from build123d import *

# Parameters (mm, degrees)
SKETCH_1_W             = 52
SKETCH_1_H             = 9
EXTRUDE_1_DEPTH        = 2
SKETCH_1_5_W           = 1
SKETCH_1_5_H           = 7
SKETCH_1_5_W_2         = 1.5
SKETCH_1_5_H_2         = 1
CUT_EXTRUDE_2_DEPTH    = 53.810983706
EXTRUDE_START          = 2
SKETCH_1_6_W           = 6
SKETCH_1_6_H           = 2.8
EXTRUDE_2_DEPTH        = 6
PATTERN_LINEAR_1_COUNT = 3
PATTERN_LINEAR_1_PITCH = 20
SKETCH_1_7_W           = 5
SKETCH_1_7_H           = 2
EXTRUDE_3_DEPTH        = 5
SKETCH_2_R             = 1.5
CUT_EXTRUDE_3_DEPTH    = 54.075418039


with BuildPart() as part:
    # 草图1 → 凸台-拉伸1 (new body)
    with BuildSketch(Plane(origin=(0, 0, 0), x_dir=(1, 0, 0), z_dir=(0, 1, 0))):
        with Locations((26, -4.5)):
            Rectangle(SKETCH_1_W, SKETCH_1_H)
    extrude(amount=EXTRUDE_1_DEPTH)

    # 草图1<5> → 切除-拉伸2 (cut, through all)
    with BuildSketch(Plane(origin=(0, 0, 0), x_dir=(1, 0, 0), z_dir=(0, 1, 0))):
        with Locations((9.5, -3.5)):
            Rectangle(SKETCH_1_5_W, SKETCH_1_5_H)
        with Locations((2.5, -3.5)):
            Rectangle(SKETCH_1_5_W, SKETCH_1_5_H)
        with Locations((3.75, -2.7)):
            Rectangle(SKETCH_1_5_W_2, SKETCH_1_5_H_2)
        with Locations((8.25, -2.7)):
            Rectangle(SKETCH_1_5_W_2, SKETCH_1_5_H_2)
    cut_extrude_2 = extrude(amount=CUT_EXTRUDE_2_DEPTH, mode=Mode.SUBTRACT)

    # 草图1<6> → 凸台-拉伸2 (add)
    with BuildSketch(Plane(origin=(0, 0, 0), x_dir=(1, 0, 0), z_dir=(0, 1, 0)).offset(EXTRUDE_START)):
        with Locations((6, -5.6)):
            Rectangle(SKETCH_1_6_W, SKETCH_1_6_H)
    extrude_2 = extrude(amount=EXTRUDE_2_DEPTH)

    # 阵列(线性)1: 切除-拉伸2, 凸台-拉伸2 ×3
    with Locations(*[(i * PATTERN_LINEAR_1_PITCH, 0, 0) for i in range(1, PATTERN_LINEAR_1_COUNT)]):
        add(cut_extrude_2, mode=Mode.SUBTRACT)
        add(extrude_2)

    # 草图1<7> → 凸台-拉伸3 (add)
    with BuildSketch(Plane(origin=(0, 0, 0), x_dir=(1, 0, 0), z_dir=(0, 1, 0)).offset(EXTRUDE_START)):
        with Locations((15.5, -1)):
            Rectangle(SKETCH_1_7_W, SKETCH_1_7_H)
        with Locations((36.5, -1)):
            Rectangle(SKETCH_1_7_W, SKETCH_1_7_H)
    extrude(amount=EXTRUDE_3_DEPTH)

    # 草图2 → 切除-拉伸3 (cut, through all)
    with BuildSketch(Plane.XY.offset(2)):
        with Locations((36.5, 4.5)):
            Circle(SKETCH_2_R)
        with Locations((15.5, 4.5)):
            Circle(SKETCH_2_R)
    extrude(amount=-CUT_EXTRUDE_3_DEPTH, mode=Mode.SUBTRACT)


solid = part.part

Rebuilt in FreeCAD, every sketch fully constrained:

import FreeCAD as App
import Part
import Sketcher

V = App.Vector
Q = App.Units.Quantity


def add_polygon(sketch, points):
    """Adds a closed chain of lines whose ends are joined by coincident constraints."""
    first, n = sketch.GeometryCount, len(points)
    for a, b in zip(points, points[1:] + points[:1]):
        sketch.addGeometry(Part.LineSegment(App.Vector(*a, 0), App.Vector(*b, 0)), False)
    for i in range(n):
        sketch.addConstraint(Sketcher.Constraint("Coincident", first + i, 2, first + (i + 1) % n, 1))

doc = App.newDocument("Part")
body = doc.addObject("PartDesign::Body", "Body")

sketch1 = body.newObject("Sketcher::SketchObject", "Sketch")
sketch1.AttachmentSupport = (doc.getObject("XZ_Plane"), [""])
sketch1.MapMode = "FlatFace"
add_polygon(sketch1, [(0, 0), (0, 9), (52, 9), (52, 0)])
sketch1.addConstraint([
    Sketcher.Constraint("Vertical", 0),
    Sketcher.Constraint("Horizontal", 1),
    Sketcher.Constraint("Vertical", 2),
    Sketcher.Constraint("Horizontal", 3),
    Sketcher.Constraint("Coincident", 3, 2, -1, 1),
    Sketcher.Constraint("DistanceX", 1, 1, 1, 2, Q("52 mm")),
    Sketcher.Constraint("DistanceY", 0, 1, 0, 2, Q("9 mm")),
])
pad1 = body.newObject("PartDesign::Pad", "Pad")
pad1.Profile = sketch1
pad1.Length = 2
pad1.Reversed = True

sketch2 = body.newObject("Sketcher::SketchObject", "Sketch001")
sketch2.AttachmentSupport = (doc.getObject("XZ_Plane"), [""])
sketch2.MapMode = "FlatFace"
add_polygon(sketch2, [(9, 3.2), (9, 7), (10, 7), (10, 0), (9, 0), (9, 2.2), (7.5, 2.2), (7.5, 3.2)])
add_polygon(sketch2, [(2, 0), (2, 7), (3, 7), (3, 3.2), (4.5, 3.2), (4.5, 2.2), (3, 2.2), (3, 0)])
sketch2.addConstraint([
    Sketcher.Constraint("Vertical", 0),
    Sketcher.Constraint("Horizontal", 1),
    Sketcher.Constraint("Vertical", 2),
    Sketcher.Constraint("Horizontal", 3),
    Sketcher.Constraint("Vertical", 4),
    Sketcher.Constraint("Horizontal", 5),
    Sketcher.Constraint("Vertical", 6),
    Sketcher.Constraint("Horizontal", 7),
    Sketcher.Constraint("Vertical", 8),
    Sketcher.Constraint("Horizontal", 9),
    Sketcher.Constraint("Vertical", 10),
    Sketcher.Constraint("Horizontal", 11),
    Sketcher.Constraint("Vertical", 12),
    Sketcher.Constraint("Horizontal", 13),
    Sketcher.Constraint("Vertical", 14),
    Sketcher.Constraint("Horizontal", 15),
    Sketcher.Constraint("PointOnObject", 2, 2, -1),
    Sketcher.Constraint("PointOnObject", 14, 2, -1),
    Sketcher.Constraint("Horizontal", 1, 2, 8, 2),
    Sketcher.Constraint("Horizontal", 7, 2, 10, 2),
    Sketcher.Constraint("Horizontal", 5, 2, 12, 2),
    Sketcher.Constraint("Vertical", 0, 2, 3, 2),
    Sketcher.Constraint("Vertical", 10, 2, 13, 2),
    Sketcher.Constraint("Equal", 3, 9),
    Sketcher.Constraint("Equal", 7, 11),
    Sketcher.Constraint("Equal", 15, 6),
    Sketcher.Constraint("DistanceX", 1, 1, 1, 2, Q("1 mm")),
    Sketcher.Constraint("DistanceY", 2, 2, 2, 1, Q("7 mm")),
    Sketcher.Constraint("DistanceX", 5, 2, 5, 1, Q("1.5 mm")),
    Sketcher.Constraint("DistanceY", 0, 1, 0, 2, Q("3.8 mm")),
    Sketcher.Constraint("DistanceX", -1, 1, 0, 2, Q("9 mm")),
    Sketcher.Constraint("DistanceX", -1, 1, 8, 2, Q("2 mm")),
])
pocket1 = body.newObject("PartDesign::Pocket", "Pocket")
pocket1.Profile = sketch2
pocket1.Type = "ThroughAll"

sketch3 = body.newObject("Sketcher::SketchObject", "Sketch002")
sketch3.AttachmentSupport = (doc.getObject("XZ_Plane"), [""])
sketch3.MapMode = "FlatFace"
sketch3.AttachmentOffset = App.Placement(V(0, 0, -2), App.Rotation())
add_polygon(sketch3, [(3, 4.2), (3, 7), (9, 7), (9, 4.2)])
sketch3.addConstraint([
    Sketcher.Constraint("Vertical", 0),
    Sketcher.Constraint("Horizontal", 1),
    Sketcher.Constraint("Vertical", 2),
    Sketcher.Constraint("Horizontal", 3),
    Sketcher.Constraint("DistanceX", 1, 1, 1, 2, Q("6 mm")),
    Sketcher.Constraint("DistanceY", 0, 1, 0, 2, Q("2.8 mm")),
    Sketcher.Constraint("DistanceX", -1, 1, 0, 2, Q("3 mm")),
    Sketcher.Constraint("DistanceY", -1, 1, 0, 2, Q("7 mm")),
])
pad2 = body.newObject("PartDesign::Pad", "Pad001")
pad2.Profile = sketch3
pad2.Length = 6
pad2.Reversed = True
doc.recompute()

linearpattern = body.newObject("PartDesign::LinearPattern", "LinearPattern")
linearpattern.Originals = [pocket1, pad2]
linearpattern.Direction = (doc.getObject("X_Axis"), [""])
linearpattern.Mode = "offset"
linearpattern.Offset = 20
linearpattern.Occurrences = 3
body.Tip = linearpattern

sketch4 = body.newObject("Sketcher::SketchObject", "Sketch003")
sketch4.AttachmentSupport = (doc.getObject("XZ_Plane"), [""])
sketch4.MapMode = "FlatFace"
sketch4.AttachmentOffset = App.Placement(V(0, 0, -2), App.Rotation())
add_polygon(sketch4, [(13, 0), (13, 2), (18, 2), (18, 0)])
add_polygon(sketch4, [(34, 0), (34, 2), (39, 2), (39, 0)])
sketch4.addConstraint([
    Sketcher.Constraint("Vertical", 0),
    Sketcher.Constraint("Horizontal", 1),
    Sketcher.Constraint("Vertical", 2),
    Sketcher.Constraint("Horizontal", 3),
    Sketcher.Constraint("Vertical", 4),
    Sketcher.Constraint("Horizontal", 5),
    Sketcher.Constraint("Vertical", 6),
    Sketcher.Constraint("Horizontal", 7),
    Sketcher.Constraint("PointOnObject", 2, 2, -1),
    Sketcher.Constraint("PointOnObject", 6, 2, -1),
    Sketcher.Constraint("Horizontal", 1, 2, 4, 2),
    Sketcher.Constraint("Equal", 3, 5),
    Sketcher.Constraint("DistanceX", 1, 1, 1, 2, Q("5 mm")),
    Sketcher.Constraint("DistanceY", 0, 1, 0, 2, Q("2 mm")),
    Sketcher.Constraint("DistanceX", -1, 1, 0, 2, Q("13 mm")),
    Sketcher.Constraint("DistanceX", -1, 1, 4, 2, Q("34 mm")),
])
pad3 = body.newObject("PartDesign::Pad", "Pad002")
pad3.Profile = sketch4
pad3.Length = 5
pad3.Reversed = True

sketch5 = body.newObject("Sketcher::SketchObject", "Sketch004")
sketch5.AttachmentSupport = (doc.getObject("XY_Plane"), [""])
sketch5.MapMode = "FlatFace"
sketch5.AttachmentOffset = App.Placement(V(0, 0, 2), App.Rotation())
sketch5.addGeometry([
    Part.Circle(V(36.5, 4.5, 0), V(0, 0, 1), 1.5),
    Part.Circle(V(15.5, 4.5, 0), V(0, 0, 1), 1.5),
], False)
sketch5.addConstraint([
    Sketcher.Constraint("Equal", 0, 1),
    Sketcher.Constraint("Horizontal", 0, 3, 1, 3),
    Sketcher.Constraint("Diameter", 0, Q("3 mm")),
    Sketcher.Constraint("DistanceX", 1, 3, 0, 3, Q("21 mm")),
    Sketcher.Constraint("DistanceX", -1, 1, 0, 3, Q("36.5 mm")),
    Sketcher.Constraint("DistanceY", -1, 1, 0, 3, Q("4.5 mm")),
])
pocket2 = body.newObject("PartDesign::Pocket", "Pocket001")
pocket2.Profile = sketch5
pocket2.Type = "ThroughAll"

doc.recompute()
